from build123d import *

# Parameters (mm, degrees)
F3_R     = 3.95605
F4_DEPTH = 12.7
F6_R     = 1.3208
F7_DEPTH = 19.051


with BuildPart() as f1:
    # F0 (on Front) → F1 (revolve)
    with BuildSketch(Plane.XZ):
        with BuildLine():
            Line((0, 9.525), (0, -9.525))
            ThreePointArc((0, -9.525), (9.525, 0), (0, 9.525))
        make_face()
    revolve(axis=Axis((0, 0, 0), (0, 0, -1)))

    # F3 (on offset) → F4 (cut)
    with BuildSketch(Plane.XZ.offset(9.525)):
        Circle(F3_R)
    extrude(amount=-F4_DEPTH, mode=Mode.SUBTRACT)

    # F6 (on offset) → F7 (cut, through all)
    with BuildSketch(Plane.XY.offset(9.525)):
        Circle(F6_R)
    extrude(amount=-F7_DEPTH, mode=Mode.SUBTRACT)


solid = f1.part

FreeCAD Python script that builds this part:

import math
import FreeCAD as App
import Part
import Sketcher
from FreeCAD import Vector
Q = App.Units.Quantity

doc = App.newDocument("Part")
params = doc.addObject("Spreadsheet::Sheet", "Params")
for row, (alias, value) in enumerate([
    ("sketch1_radius", "0.375 in"),
    ("revolution_angle", "360 deg"),
    ("pocket1_length", "0.5 in"),
    ("sketch3_diameter", "0.104 in"),
], start=1):
    params.set(f"A{row}", alias)
    params.set(f"B{row}", "=" + value)
    params.setAlias(f"B{row}", alias)

body = doc.addObject("PartDesign::Body", "Body")

sketch1 = doc.addObject("Sketcher::SketchObject", "Sketch")
body.addObject(sketch1)
sketch1.AttachmentSupport = (doc.XZ_Plane, [""])
sketch1.MapMode = "FlatFace"
sketch1.addGeometry(Part.LineSegment(Vector(0, 9.525, 0), Vector(0, -9.525, 0)), False)
sketch1.addGeometry(Part.ArcOfCircle(Part.Circle(Vector(0, 0, 0), Vector(0, 0, 1), 9.525), math.radians(-90), math.radians(90)), False)
sketch1.addConstraint(Sketcher.Constraint("Coincident", 0, 1, 1, 2))
sketch1.addConstraint(Sketcher.Constraint("Coincident", 1, 1, 0, 2))
sketch1.addConstraint(Sketcher.Constraint("Vertical", 0))
sketch1.addConstraint(Sketcher.Constraint("Coincident", 1, 3, -1, 1))
sketch1.addConstraint(Sketcher.Constraint("PointOnObject", 0, 1, -2))
sketch1.addConstraint(Sketcher.Constraint("Radius", 1, Q("0.375 in")))
sketch1.setExpression("Constraints[5]", "Params.sketch1_radius")
revolution = doc.addObject("PartDesign::Revolution", "Revolution")
body.addObject(revolution)
revolution.Profile = sketch1
revolution.ReferenceAxis = (sketch1, ["V_Axis"])
revolution.setExpression("Angle", "Params.revolution_angle")

sketch2 = doc.addObject("Sketcher::SketchObject", "Sketch001")
body.addObject(sketch2)
sketch2.AttachmentSupport = (doc.XZ_Plane, [""])
sketch2.MapMode = "FlatFace"
sketch2.AttachmentOffset = App.Placement(Vector(0, 0, 0.375 * 25.4), App.Rotation())
sketch2.addGeometry(Part.Circle(Vector(0, 0, 0), Vector(0, 0, 1), 3.95605), False)
sketch2.addConstraint(Sketcher.Constraint("Coincident", 0, 3, -1, 1))
sketch2.addConstraint(Sketcher.Constraint("Diameter", 0, Q("0.3115 in")))
pocket1 = doc.addObject("PartDesign::Pocket", "Pocket")
body.addObject(pocket1)
pocket1.Profile = sketch2
pocket1.setExpression("Length", "Params.pocket1_length")

sketch3 = doc.addObject("Sketcher::SketchObject", "Sketch002")
body.addObject(sketch3)
sketch3.AttachmentSupport = (doc.XY_Plane, [""])
sketch3.MapMode = "FlatFace"
sketch3.AttachmentOffset = App.Placement(Vector(0, 0, 0.375 * 25.4), App.Rotation())
sketch3.addGeometry(Part.Circle(Vector(0, 0, 0), Vector(0, 0, 1), 1.3208), False)
sketch3.addConstraint(Sketcher.Constraint("Coincident", 0, 3, -1, 1))
sketch3.addConstraint(Sketcher.Constraint("Diameter", 0, Q("0.104 in")))
sketch3.setExpression("Constraints[1]", "Params.sketch3_diameter")
pocket2 = doc.addObject("PartDesign::Pocket", "Pocket001")
body.addObject(pocket2)
pocket2.Profile = sketch3
pocket2.Type = "ThroughAll"

doc.recompute()
